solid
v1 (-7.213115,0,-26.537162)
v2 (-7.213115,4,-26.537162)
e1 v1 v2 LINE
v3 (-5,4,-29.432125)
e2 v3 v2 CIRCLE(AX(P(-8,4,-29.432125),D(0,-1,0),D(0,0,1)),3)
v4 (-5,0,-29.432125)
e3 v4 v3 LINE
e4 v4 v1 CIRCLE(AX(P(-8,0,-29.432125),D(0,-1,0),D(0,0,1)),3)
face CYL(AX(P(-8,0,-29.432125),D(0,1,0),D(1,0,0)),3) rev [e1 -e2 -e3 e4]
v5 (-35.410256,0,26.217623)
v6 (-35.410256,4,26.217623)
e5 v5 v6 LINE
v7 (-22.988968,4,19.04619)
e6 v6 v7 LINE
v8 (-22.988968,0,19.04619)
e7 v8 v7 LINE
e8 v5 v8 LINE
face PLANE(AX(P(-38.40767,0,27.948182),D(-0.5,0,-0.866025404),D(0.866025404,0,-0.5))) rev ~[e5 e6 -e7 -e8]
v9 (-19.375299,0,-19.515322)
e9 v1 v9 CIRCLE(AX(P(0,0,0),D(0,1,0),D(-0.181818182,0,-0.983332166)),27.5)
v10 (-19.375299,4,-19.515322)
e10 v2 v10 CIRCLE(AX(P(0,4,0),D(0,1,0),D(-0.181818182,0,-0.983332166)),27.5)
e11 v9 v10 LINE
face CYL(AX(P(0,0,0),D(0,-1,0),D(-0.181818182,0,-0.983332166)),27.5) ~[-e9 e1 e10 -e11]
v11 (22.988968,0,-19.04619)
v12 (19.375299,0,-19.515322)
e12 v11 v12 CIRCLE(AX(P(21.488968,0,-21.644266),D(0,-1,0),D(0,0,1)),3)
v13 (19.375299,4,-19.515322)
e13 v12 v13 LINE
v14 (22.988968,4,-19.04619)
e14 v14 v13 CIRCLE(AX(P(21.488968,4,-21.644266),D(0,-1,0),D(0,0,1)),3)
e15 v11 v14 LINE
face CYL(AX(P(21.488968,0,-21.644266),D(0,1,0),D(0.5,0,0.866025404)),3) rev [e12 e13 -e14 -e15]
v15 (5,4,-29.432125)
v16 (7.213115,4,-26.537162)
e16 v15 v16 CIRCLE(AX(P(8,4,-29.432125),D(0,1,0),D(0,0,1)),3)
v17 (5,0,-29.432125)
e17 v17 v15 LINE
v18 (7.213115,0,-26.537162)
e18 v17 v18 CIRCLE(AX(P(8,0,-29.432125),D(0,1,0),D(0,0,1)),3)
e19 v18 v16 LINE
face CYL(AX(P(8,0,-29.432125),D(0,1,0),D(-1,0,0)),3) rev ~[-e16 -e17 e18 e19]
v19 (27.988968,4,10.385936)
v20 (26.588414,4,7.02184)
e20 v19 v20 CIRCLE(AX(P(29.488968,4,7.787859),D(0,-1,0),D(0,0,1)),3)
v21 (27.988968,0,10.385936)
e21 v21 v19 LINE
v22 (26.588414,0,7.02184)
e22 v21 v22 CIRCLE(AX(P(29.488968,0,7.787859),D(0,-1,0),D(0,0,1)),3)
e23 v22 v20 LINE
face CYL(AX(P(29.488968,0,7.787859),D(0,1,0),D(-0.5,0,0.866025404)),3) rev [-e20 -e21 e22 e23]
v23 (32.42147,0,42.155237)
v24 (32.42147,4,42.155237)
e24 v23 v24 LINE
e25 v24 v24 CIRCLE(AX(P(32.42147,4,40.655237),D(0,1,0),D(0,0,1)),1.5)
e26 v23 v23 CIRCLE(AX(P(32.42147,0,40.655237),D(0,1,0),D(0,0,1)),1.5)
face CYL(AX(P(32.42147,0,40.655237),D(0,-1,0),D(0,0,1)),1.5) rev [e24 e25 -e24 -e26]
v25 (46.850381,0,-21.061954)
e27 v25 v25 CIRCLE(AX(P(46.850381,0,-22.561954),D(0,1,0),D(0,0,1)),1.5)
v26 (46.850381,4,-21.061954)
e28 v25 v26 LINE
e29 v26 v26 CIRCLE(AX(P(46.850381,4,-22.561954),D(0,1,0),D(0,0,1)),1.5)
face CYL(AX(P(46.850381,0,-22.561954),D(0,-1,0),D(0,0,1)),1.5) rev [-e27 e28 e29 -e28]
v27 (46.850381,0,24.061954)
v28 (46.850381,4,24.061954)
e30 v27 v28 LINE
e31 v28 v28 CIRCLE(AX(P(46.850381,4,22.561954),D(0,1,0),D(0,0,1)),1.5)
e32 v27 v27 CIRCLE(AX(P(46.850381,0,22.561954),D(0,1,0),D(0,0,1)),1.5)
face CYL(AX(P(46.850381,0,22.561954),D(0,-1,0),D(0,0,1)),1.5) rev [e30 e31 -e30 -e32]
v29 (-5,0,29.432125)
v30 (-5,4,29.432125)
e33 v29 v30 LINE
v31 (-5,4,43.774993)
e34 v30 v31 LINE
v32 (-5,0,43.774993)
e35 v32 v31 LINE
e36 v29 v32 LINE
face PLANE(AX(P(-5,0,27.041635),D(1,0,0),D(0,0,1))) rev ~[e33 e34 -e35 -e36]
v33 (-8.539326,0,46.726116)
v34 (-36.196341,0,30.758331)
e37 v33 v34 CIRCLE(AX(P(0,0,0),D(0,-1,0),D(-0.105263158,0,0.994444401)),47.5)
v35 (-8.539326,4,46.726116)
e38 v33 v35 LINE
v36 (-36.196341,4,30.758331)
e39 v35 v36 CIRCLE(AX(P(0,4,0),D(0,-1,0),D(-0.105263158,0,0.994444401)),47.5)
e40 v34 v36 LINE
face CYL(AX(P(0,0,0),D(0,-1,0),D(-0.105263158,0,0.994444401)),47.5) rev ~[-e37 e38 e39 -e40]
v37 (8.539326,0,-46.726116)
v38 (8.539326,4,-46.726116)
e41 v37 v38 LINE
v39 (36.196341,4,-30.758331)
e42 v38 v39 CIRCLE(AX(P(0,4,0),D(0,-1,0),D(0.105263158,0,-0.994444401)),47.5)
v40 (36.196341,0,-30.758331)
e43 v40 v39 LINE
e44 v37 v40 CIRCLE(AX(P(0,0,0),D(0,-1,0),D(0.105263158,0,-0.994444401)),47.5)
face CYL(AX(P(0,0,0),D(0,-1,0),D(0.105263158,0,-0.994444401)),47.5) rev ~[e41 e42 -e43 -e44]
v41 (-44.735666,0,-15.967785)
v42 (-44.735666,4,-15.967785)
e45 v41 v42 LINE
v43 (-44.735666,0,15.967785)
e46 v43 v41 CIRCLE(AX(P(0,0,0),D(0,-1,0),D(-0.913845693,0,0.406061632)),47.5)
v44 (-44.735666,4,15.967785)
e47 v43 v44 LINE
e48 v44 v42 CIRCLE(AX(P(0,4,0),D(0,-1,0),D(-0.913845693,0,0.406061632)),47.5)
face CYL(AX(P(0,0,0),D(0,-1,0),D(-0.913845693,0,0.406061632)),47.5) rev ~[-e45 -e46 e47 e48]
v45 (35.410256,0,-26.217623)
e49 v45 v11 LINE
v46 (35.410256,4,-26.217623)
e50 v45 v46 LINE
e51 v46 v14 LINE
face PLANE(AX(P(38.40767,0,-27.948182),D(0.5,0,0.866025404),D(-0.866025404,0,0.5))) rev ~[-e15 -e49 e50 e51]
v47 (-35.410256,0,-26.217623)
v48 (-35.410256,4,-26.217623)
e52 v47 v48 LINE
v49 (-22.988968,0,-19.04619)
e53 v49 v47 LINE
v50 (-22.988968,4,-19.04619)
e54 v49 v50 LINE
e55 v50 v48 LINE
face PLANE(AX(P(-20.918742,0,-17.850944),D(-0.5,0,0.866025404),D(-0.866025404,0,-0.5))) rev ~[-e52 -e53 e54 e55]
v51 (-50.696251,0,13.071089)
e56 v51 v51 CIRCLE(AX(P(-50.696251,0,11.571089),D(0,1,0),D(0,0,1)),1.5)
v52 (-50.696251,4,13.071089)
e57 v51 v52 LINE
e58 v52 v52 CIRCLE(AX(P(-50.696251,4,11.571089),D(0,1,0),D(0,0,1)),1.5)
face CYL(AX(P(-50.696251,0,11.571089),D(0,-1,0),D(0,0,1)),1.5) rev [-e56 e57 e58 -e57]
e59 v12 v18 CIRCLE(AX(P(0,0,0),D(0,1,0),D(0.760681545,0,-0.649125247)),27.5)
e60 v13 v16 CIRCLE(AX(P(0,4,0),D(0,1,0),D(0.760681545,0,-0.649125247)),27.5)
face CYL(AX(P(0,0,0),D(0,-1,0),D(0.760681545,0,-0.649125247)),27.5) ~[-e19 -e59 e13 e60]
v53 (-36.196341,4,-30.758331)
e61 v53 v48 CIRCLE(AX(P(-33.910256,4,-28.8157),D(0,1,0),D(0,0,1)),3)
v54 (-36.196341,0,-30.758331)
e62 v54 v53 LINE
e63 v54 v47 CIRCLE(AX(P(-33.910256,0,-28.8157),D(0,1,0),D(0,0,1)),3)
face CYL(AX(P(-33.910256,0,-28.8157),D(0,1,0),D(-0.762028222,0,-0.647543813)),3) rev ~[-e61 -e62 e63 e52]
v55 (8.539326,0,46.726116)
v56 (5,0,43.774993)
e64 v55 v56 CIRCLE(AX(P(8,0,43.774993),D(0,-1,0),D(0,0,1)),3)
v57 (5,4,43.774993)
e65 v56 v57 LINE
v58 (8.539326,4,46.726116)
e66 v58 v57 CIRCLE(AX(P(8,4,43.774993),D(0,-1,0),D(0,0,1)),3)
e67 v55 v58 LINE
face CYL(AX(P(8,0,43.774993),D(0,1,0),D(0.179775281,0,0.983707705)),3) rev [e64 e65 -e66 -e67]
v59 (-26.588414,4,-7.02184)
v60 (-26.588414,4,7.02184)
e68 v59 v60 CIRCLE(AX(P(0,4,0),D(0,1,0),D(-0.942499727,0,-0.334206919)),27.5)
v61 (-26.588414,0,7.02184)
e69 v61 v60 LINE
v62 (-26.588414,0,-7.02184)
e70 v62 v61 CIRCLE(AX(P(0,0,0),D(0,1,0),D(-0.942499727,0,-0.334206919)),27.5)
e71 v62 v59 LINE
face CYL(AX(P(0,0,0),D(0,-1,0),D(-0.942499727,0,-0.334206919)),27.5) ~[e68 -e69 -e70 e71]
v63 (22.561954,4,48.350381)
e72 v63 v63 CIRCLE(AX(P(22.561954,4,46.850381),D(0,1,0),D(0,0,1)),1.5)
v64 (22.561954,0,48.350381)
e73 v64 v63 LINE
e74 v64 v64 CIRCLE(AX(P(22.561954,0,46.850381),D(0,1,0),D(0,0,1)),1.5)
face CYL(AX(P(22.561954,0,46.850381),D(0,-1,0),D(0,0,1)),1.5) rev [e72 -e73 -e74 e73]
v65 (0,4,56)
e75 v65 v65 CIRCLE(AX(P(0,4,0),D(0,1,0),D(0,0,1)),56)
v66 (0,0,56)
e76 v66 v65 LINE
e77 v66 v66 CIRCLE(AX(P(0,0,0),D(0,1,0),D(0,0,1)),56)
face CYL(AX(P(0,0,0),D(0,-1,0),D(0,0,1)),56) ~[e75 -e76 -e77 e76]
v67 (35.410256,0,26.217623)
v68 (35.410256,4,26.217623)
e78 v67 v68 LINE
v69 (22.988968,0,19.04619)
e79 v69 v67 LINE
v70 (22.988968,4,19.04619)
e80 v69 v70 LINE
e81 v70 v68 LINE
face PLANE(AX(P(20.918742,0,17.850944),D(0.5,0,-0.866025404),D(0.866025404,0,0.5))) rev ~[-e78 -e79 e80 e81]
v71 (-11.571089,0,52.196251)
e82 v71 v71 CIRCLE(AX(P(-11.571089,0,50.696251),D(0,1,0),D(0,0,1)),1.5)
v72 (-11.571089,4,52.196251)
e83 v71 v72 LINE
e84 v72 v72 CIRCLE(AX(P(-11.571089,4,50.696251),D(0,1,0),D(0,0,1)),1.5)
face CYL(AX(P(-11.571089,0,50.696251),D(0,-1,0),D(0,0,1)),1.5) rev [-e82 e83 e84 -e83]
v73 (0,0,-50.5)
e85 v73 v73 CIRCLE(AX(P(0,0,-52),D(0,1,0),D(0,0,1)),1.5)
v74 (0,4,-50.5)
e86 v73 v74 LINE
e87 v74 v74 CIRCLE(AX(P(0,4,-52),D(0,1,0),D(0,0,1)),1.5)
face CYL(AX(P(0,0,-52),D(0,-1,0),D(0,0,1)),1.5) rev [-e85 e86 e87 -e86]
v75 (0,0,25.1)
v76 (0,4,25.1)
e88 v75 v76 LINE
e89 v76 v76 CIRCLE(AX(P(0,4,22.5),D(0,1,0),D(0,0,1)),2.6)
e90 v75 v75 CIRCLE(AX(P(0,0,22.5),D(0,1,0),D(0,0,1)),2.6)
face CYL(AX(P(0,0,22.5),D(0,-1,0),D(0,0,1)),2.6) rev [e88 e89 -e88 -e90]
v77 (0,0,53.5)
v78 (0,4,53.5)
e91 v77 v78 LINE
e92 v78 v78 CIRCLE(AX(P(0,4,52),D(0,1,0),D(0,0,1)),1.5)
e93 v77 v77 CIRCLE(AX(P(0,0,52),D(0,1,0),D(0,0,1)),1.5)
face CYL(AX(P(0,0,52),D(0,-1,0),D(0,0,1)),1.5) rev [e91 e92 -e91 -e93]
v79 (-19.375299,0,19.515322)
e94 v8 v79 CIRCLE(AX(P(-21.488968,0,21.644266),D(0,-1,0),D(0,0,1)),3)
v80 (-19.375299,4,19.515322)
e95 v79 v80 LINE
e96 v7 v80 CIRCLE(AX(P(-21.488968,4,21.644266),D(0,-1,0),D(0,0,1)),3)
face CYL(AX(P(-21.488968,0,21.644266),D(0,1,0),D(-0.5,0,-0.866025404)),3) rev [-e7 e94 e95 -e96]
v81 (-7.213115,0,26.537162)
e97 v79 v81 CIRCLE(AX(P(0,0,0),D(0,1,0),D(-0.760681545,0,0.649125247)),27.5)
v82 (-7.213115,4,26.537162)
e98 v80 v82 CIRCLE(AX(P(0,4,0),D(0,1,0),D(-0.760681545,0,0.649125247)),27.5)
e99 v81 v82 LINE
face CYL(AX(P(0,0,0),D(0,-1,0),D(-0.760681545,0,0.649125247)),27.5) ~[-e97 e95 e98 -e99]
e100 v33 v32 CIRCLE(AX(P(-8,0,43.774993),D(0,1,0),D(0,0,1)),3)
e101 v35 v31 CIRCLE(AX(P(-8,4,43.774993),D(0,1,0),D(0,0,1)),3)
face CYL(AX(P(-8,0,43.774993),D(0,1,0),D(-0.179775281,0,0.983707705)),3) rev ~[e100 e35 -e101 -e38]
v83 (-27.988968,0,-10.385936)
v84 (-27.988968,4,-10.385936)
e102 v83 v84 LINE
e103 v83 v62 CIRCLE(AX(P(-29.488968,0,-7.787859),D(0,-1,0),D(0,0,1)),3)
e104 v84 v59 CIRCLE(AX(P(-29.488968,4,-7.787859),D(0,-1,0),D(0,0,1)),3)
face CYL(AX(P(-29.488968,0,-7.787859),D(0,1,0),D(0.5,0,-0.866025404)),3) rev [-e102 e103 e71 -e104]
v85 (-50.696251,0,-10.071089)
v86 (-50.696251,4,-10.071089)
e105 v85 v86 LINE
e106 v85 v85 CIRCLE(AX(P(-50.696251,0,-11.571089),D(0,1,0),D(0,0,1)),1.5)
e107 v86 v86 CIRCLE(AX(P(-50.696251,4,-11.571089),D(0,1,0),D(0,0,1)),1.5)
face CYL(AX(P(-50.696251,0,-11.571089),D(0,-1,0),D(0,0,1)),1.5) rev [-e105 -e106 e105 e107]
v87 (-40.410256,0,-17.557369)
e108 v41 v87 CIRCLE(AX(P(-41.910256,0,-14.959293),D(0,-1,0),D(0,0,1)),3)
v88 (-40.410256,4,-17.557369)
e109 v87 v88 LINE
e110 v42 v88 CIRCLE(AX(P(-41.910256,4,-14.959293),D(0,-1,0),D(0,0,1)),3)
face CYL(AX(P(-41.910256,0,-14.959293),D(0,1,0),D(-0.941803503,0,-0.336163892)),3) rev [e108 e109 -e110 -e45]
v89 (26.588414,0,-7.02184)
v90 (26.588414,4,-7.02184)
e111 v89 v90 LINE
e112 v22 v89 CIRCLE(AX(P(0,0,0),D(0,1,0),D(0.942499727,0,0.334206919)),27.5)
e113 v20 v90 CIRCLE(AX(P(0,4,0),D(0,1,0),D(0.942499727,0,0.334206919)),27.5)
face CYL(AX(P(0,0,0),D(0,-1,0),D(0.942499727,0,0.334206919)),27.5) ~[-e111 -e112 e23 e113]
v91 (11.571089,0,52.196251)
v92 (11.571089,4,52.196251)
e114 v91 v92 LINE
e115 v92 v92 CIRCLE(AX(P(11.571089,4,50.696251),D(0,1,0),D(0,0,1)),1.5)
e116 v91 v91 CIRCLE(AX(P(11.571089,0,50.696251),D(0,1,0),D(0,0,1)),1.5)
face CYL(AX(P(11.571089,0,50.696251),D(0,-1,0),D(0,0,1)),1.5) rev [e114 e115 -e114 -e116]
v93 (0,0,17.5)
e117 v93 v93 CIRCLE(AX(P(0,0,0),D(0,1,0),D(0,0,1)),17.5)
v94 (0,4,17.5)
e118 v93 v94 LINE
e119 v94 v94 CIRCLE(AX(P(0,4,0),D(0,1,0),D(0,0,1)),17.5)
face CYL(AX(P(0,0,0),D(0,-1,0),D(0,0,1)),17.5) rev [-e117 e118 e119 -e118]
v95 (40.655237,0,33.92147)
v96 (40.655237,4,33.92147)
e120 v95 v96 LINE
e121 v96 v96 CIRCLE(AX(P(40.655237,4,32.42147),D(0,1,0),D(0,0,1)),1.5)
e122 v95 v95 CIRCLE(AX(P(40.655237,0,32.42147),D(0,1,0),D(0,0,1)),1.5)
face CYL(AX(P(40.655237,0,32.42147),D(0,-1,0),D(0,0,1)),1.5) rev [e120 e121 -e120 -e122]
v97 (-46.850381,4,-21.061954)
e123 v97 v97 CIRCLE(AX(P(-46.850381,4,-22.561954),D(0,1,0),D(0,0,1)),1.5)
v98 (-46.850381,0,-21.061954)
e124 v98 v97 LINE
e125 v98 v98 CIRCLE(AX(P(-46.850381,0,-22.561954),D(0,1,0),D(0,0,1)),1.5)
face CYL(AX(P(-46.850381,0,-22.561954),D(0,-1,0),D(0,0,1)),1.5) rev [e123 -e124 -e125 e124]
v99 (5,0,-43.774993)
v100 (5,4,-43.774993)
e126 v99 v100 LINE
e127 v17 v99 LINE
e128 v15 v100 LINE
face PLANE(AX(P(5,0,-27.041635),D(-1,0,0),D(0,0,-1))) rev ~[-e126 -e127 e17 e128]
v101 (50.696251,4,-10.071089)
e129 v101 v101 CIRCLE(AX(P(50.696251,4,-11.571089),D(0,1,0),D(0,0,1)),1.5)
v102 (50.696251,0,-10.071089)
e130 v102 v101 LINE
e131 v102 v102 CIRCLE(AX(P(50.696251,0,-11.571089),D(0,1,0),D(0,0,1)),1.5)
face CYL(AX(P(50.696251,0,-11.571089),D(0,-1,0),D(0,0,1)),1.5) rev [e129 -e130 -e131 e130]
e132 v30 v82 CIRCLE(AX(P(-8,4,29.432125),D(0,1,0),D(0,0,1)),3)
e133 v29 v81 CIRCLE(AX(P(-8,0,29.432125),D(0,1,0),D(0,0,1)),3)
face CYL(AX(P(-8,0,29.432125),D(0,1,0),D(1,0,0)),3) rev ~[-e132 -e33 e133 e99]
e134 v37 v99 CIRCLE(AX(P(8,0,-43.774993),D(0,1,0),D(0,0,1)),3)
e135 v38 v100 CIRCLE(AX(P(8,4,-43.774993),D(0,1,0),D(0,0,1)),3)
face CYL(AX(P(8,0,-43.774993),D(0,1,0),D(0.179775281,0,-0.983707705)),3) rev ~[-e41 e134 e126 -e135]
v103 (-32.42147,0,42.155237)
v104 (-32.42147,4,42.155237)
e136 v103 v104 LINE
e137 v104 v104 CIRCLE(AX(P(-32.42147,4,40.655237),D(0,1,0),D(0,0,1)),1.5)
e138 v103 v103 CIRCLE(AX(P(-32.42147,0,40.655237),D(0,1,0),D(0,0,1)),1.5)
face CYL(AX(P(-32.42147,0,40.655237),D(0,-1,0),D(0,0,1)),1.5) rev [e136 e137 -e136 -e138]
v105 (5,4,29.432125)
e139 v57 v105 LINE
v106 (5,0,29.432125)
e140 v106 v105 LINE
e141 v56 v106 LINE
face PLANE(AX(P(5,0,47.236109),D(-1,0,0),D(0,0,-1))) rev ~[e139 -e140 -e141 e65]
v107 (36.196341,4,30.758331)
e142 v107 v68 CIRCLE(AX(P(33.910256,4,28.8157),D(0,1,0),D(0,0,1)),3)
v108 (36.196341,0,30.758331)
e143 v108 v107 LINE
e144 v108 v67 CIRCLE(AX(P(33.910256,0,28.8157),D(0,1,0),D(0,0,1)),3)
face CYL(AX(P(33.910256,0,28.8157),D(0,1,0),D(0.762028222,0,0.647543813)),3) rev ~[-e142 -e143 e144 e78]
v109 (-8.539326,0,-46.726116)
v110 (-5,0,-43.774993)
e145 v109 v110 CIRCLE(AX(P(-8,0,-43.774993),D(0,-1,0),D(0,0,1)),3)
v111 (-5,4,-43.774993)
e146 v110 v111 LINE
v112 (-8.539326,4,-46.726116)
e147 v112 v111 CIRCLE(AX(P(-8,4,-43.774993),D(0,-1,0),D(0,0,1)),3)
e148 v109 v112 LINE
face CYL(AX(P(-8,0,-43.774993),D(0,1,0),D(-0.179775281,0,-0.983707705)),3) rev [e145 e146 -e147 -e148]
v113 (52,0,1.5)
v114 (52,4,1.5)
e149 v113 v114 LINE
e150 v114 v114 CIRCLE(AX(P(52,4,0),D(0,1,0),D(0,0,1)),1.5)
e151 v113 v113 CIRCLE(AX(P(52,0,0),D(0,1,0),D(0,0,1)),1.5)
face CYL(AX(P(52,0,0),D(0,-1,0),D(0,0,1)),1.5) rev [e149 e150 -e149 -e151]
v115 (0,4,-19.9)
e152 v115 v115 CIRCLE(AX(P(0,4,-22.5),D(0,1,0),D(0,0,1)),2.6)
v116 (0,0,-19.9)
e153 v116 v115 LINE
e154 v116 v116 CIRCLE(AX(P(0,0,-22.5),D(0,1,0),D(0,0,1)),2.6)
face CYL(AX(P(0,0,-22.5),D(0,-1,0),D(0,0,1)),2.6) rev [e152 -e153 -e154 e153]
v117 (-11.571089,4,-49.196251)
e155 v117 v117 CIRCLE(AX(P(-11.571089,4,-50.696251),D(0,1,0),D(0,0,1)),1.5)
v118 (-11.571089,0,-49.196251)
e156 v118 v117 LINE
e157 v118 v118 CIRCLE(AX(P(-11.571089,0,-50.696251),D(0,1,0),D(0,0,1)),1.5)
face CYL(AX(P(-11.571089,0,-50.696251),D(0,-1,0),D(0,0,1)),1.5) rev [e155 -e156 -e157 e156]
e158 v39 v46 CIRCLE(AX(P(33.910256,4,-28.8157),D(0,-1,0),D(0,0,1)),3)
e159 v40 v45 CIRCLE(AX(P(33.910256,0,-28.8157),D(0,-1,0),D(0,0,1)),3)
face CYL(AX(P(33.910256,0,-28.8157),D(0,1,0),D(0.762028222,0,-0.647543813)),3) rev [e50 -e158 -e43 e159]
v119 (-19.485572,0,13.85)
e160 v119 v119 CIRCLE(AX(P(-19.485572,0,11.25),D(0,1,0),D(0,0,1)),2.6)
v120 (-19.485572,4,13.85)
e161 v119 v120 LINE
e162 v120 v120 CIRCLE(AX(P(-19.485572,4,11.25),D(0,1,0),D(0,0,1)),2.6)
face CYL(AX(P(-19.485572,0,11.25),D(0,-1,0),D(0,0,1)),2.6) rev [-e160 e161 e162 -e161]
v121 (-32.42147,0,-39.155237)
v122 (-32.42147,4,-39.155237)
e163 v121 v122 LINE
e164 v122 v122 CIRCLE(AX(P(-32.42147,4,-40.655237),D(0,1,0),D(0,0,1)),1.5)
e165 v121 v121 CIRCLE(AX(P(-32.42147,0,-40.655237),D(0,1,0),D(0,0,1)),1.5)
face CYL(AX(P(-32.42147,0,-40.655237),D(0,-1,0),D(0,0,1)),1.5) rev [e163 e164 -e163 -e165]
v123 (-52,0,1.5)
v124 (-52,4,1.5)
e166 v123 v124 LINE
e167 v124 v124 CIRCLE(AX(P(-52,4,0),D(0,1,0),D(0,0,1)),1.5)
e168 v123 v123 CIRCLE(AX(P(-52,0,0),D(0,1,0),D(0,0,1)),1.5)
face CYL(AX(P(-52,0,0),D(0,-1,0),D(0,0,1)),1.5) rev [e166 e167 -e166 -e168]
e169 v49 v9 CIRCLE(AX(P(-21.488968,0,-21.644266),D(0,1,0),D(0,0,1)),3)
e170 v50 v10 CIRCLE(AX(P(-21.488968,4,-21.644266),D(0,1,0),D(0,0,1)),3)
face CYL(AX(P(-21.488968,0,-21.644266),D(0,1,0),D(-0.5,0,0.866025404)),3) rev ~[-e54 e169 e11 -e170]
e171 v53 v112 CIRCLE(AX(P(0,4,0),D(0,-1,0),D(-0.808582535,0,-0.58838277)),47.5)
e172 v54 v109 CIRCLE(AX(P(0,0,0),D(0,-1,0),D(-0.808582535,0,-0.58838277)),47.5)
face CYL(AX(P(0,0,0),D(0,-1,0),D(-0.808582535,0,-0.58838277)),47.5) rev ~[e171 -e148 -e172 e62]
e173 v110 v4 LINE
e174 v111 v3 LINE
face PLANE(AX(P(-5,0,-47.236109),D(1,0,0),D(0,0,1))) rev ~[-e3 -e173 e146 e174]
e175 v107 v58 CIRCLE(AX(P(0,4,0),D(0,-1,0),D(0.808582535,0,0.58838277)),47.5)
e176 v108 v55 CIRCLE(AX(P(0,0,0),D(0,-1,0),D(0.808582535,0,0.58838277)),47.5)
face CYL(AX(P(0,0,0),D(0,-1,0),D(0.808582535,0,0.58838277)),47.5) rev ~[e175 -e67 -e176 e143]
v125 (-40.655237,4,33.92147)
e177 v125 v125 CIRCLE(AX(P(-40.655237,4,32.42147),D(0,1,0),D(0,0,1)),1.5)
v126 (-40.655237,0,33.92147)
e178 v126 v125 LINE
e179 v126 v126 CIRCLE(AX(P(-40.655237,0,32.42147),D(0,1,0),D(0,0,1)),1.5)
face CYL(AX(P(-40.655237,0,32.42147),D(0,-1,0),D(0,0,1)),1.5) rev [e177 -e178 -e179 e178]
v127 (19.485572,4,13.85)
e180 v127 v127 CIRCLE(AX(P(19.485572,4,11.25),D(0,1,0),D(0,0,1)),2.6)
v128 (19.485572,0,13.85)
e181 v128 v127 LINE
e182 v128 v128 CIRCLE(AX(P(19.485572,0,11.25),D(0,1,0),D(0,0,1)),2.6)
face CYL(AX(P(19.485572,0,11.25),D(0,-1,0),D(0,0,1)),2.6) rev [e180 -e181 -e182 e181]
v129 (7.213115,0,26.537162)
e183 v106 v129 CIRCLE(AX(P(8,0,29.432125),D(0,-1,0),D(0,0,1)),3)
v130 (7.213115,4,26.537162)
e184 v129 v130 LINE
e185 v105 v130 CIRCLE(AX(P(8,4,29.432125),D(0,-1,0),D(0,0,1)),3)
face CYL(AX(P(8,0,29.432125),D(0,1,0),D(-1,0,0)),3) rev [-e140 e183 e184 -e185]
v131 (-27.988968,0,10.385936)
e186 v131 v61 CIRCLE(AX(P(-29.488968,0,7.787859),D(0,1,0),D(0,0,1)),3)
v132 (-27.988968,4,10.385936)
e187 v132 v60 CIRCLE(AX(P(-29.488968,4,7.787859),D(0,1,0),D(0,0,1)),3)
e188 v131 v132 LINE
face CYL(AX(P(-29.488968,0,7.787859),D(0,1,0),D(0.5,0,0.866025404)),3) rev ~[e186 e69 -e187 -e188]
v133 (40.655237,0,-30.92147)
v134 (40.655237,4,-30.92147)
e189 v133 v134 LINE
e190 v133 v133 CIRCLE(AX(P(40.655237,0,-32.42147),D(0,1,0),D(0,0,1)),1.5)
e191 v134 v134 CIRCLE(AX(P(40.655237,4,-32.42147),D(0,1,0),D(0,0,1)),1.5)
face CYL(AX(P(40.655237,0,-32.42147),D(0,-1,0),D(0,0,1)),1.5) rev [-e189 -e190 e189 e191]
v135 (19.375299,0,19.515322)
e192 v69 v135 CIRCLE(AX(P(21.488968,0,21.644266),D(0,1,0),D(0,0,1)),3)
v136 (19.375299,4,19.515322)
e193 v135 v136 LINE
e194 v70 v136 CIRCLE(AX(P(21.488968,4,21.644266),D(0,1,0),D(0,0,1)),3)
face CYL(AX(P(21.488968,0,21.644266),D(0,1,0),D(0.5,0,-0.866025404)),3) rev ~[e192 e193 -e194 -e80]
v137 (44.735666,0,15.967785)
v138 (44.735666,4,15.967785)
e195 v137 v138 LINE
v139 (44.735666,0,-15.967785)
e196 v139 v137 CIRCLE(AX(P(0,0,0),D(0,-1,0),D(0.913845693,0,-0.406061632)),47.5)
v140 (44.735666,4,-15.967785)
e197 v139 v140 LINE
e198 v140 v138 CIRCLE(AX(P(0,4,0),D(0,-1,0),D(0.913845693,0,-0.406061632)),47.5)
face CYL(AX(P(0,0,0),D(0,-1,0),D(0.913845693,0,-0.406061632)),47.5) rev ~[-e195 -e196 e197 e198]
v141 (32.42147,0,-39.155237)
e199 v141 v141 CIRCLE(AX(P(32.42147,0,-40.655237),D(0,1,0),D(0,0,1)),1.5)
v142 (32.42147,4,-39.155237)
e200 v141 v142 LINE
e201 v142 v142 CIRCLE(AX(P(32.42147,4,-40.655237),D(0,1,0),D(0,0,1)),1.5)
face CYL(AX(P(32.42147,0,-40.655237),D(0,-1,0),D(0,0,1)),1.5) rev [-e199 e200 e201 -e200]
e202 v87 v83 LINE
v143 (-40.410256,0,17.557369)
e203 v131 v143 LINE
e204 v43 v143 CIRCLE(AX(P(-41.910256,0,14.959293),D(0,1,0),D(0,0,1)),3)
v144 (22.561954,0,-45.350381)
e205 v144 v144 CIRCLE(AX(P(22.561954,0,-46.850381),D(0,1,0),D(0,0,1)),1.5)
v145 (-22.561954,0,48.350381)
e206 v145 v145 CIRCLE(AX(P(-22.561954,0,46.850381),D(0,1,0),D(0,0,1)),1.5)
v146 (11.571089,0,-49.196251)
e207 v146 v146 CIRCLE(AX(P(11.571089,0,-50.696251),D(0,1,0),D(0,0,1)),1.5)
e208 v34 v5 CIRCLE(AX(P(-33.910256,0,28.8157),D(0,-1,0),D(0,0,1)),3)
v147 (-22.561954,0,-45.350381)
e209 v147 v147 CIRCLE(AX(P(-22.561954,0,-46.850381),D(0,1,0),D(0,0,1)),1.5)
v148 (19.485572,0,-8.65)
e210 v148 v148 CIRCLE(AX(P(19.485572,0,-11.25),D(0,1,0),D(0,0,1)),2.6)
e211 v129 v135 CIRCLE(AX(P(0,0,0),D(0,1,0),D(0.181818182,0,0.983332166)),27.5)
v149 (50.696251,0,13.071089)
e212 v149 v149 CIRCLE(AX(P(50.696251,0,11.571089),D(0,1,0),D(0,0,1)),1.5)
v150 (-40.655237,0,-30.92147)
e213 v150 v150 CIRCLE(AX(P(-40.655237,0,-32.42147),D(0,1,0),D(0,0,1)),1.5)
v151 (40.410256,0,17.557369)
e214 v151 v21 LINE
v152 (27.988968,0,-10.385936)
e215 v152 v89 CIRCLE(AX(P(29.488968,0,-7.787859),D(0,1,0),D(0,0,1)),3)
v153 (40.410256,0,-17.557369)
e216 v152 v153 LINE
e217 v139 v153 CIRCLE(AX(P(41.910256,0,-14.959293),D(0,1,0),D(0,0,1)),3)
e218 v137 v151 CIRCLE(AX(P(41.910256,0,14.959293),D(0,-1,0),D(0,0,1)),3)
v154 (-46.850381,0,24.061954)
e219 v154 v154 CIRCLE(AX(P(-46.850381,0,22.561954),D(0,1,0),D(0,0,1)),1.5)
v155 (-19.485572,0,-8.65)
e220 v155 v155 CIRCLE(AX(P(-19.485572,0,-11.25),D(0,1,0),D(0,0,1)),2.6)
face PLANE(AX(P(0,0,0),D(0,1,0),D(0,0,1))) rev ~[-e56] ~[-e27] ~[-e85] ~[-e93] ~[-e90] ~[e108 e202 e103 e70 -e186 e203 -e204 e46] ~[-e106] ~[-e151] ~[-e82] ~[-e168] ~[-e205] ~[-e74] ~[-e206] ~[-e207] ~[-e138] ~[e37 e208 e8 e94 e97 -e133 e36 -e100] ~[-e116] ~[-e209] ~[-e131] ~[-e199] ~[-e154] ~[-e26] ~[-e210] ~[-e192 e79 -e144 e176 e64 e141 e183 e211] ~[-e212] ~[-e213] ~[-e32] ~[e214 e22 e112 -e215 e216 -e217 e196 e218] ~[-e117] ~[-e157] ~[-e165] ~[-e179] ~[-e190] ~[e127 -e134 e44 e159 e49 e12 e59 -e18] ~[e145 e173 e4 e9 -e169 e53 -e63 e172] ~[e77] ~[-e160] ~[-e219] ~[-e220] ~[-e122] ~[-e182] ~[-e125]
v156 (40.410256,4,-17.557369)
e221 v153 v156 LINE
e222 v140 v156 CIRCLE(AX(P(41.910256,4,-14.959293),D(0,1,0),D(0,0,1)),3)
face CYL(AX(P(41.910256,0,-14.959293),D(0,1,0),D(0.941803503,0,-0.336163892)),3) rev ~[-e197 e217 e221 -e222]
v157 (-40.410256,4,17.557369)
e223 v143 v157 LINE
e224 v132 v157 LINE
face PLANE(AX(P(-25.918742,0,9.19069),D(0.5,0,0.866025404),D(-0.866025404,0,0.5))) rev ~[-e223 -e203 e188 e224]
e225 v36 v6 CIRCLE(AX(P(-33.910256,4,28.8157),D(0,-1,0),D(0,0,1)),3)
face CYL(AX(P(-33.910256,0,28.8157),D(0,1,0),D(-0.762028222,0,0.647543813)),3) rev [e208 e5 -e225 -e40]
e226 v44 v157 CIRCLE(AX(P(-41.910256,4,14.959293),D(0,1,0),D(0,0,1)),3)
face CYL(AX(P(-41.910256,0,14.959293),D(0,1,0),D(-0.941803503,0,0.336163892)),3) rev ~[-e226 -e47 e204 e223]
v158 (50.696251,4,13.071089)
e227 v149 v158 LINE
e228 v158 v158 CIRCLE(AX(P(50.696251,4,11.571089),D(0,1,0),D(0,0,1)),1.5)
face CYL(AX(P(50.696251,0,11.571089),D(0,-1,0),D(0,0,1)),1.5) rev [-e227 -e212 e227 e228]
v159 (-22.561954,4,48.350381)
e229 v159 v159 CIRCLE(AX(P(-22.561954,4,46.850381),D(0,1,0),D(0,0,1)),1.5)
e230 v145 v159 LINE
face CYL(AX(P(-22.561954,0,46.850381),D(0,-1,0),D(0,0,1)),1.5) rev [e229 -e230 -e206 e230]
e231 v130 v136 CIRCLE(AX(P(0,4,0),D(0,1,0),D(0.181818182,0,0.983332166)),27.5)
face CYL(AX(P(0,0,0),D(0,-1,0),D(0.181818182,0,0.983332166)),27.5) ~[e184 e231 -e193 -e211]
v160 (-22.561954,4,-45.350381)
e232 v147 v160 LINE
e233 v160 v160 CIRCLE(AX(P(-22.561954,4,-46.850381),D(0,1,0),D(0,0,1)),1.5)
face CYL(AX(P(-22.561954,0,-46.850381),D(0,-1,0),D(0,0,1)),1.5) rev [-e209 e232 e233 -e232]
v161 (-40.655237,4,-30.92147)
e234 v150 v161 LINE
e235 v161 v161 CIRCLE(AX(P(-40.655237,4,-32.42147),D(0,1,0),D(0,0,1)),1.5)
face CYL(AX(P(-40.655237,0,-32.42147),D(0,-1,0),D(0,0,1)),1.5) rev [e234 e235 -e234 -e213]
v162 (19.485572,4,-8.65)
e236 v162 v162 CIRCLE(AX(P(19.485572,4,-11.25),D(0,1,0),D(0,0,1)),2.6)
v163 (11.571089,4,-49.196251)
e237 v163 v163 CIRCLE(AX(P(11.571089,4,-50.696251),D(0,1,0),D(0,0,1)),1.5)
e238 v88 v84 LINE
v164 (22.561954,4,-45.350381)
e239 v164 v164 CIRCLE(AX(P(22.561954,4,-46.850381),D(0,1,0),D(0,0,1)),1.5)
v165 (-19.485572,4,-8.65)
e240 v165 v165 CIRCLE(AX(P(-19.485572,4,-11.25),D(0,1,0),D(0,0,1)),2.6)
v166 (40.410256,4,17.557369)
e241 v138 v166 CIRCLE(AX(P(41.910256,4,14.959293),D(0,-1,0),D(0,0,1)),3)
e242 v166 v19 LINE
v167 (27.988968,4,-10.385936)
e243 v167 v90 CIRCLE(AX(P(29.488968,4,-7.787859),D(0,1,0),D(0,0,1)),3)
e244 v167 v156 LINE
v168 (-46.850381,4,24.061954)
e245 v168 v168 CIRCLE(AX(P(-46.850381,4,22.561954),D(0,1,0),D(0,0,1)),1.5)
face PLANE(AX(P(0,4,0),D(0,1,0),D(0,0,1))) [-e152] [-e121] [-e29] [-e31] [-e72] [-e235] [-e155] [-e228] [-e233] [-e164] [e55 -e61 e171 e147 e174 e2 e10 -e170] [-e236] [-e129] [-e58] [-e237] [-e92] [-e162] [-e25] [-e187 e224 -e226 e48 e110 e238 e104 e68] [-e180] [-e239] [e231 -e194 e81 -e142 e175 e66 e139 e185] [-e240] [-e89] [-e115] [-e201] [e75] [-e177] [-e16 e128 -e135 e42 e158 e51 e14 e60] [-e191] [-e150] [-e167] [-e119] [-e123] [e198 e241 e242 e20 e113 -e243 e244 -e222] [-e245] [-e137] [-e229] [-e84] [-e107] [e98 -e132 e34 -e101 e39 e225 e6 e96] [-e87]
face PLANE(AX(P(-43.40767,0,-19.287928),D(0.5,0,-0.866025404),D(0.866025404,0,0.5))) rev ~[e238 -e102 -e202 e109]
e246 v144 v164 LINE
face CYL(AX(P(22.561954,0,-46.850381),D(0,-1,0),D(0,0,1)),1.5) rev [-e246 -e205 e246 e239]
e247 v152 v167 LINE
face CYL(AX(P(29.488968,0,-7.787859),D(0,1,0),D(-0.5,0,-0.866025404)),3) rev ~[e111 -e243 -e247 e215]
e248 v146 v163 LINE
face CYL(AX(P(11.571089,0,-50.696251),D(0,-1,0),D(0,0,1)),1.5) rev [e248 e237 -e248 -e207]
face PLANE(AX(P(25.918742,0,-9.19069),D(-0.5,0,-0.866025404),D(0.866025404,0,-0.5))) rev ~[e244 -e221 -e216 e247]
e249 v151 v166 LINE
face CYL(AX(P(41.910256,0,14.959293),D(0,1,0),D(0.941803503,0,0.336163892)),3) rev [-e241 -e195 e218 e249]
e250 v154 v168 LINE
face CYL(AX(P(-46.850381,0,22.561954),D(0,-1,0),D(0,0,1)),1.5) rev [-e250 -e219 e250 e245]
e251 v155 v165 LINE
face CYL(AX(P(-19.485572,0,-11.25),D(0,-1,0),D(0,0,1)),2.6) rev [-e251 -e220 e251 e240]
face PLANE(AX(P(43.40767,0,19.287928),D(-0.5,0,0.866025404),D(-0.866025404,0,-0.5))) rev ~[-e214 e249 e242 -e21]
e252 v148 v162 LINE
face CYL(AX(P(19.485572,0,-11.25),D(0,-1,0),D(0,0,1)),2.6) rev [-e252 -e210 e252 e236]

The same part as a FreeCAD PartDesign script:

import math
import FreeCAD as App
import Part
import Sketcher
Q = App.Units.Quantity


def edges_at(feature, points):
    """Names of the edges that pass closest to the given points."""
    edges = feature.Shape.Edges
    near = lambda p: min(range(len(edges)), key=lambda i: edges[i].distToShape(Part.Vertex(*p))[0])
    return sorted({f"Edge{near(p) + 1}" for p in points})

doc = App.newDocument("Part")
params = doc.addObject("Spreadsheet::Sheet", "Params")
for row, (alias, value) in enumerate([
    ("sketch1_diameter", "112 mm"),
    ("sketch1_diameter2", "3 mm"),
    ("sketch1_diameter3", "35 mm"),
    ("sketch1_diameter4", "5.2 mm"),
    ("sketch1_radius", "47.5 mm"),
    ("pad1_length", "4 mm"),
    ("fillet_radius", "3 mm"),
], start=1):
    params.set(f"A{row}", alias)
    params.set(f"B{row}", "=" + value)
    params.setAlias(f"B{row}", alias)

body = doc.addObject("PartDesign::Body", "Body")

sketch1 = doc.addObject("Sketcher::SketchObject", "Sketch")
body.addObject(sketch1)
sketch1.AttachmentSupport = (doc.XZ_Plane, [""])
sketch1.MapMode = "FlatFace"
sketch1.addGeometry(Part.Circle(App.Vector(0, 0, 0), App.Vector(0, 0, 1), 56), False)
sketch1.addGeometry(Part.Circle(App.Vector(-40.655237, -32.42147, 0), App.Vector(0, 0, 1), 1.5), False)
sketch1.addGeometry(Part.Circle(App.Vector(-32.42147, -40.655237, 0), App.Vector(0, 0, 1), 1.5), False)
sketch1.addGeometry(Part.Circle(App.Vector(-46.850381, -22.561954, 0), App.Vector(0, 0, 1), 1.5), False)
sketch1.addGeometry(Part.Circle(App.Vector(-50.696251, -11.571089, 0), App.Vector(0, 0, 1), 1.5), False)
sketch1.addGeometry(Part.Circle(App.Vector(-22.561954, -46.850381, 0), App.Vector(0, 0, 1), 1.5), False)
sketch1.addGeometry(Part.ArcOfCircle(Part.Circle(App.Vector(0, 0, 0), App.Vector(0, 0, 1), 47.5), math.radians(-143.957672), math.radians(-96.042328)), False)
sketch1.addGeometry(Part.LineSegment(App.Vector(-5, -47.236109, 0), App.Vector(-5, -27.041635, 0)), False)
sketch1.addGeometry(Part.ArcOfCircle(Part.Circle(App.Vector(0, 0, 0), App.Vector(0, 0, 1), 27.5), math.radians(-139.524318), math.radians(-100.475682)), False)
sketch1.addGeometry(Part.LineSegment(App.Vector(-20.918742, -17.850944, 0), App.Vector(-38.40767, -27.948182, 0)), False)
sketch1.addGeometry(Part.Circle(App.Vector(-11.571089, -50.696251, 0), App.Vector(0, 0, 1), 1.5), False)
sketch1.addGeometry(Part.Circle(App.Vector(0, -52, 0), App.Vector(0, 0, 1), 1.5), False)
sketch1.addGeometry(Part.Circle(App.Vector(-19.485572, -11.25, 0), App.Vector(0, 0, 1), 2.6), False)
sketch1.addGeometry(Part.Circle(App.Vector(0, -22.5, 0), App.Vector(0, 0, 1), 2.6), False)
sketch1.addGeometry(Part.Circle(App.Vector(0, 0, 0), App.Vector(0, 0, 1), 17.5), False)
sketch1.addGeometry(Part.Circle(App.Vector(-52, 0, 0), App.Vector(0, 0, 1), 1.5), False)
sketch1.addGeometry(Part.Circle(App.Vector(-50.696251, 11.571089, 0), App.Vector(0, 0, 1), 1.5), False)
sketch1.addGeometry(Part.Circle(App.Vector(-46.850381, 22.561954, 0), App.Vector(0, 0, 1), 1.5), False)
sketch1.addGeometry(Part.ArcOfCircle(Part.Circle(App.Vector(0, 0, 0), App.Vector(0, 0, 1), 47.5), math.radians(156.042328), math.radians(203.957672)), False)
sketch1.addGeometry(Part.LineSegment(App.Vector(-43.40767, -19.287928, 0), App.Vector(-25.918742, -9.19069, 0)), False)
sketch1.addGeometry(Part.ArcOfCircle(Part.Circle(App.Vector(0, 0, 0), App.Vector(0, 0, 1), 27.5), math.radians(160.475682), math.radians(199.524318)), False)
sketch1.addGeometry(Part.LineSegment(App.Vector(-25.918742, 9.19069, 0), App.Vector(-43.40767, 19.287928, 0)), False)
sketch1.addGeometry(Part.Circle(App.Vector(-40.655237, 32.42147, 0), App.Vector(0, 0, 1), 1.5), False)
sketch1.addGeometry(Part.Circle(App.Vector(-32.42147, 40.655237, 0), App.Vector(0, 0, 1), 1.5), False)
sketch1.addGeometry(Part.Circle(App.Vector(-19.485572, 11.25, 0), App.Vector(0, 0, 1), 2.6), False)
sketch1.addGeometry(Part.ArcOfCircle(Part.Circle(App.Vector(0, 0, 0), App.Vector(0, 0, 1), 47.5), math.radians(96.042328), math.radians(143.957672)), False)
sketch1.addGeometry(Part.LineSegment(App.Vector(-38.40767, 27.948182, 0), App.Vector(-20.918742, 17.850944, 0)), False)
sketch1.addGeometry(Part.ArcOfCircle(Part.Circle(App.Vector(0, 0, 0), App.Vector(0, 0, 1), 27.5), math.radians(100.475682), math.radians(139.524318)), False)
sketch1.addGeometry(Part.LineSegment(App.Vector(-5, 27.041635, 0), App.Vector(-5, 47.236109, 0)), False)
sketch1.addGeometry(Part.Circle(App.Vector(-22.561954, 46.850381, 0), App.Vector(0, 0, 1), 1.5), False)
sketch1.addGeometry(Part.Circle(App.Vector(-11.571089, 50.696251, 0), App.Vector(0, 0, 1), 1.5), False)
sketch1.addGeometry(Part.Circle(App.Vector(11.571089, -50.696251, 0), App.Vector(0, 0, 1), 1.5), False)
sketch1.addGeometry(Part.Circle(App.Vector(22.561954, -46.850381, 0), App.Vector(0, 0, 1), 1.5), False)
sketch1.addGeometry(Part.ArcOfCircle(Part.Circle(App.Vector(0, 0, 0), App.Vector(0, 0, 1), 47.5), math.radians(-83.957672), math.radians(-36.042328)), False)
sketch1.addGeometry(Part.LineSegment(App.Vector(38.40767, -27.948182, 0), App.Vector(20.918742, -17.850944, 0)), False)
sketch1.addGeometry(Part.ArcOfCircle(Part.Circle(App.Vector(0, 0, 0), App.Vector(0, 0, 1), 27.5), math.radians(-79.524318), math.radians(-40.475682)), False)
sketch1.addGeometry(Part.LineSegment(App.Vector(5, -27.041635, 0), App.Vector(5, -47.236109, 0)), False)
sketch1.addGeometry(Part.Circle(App.Vector(19.485572, -11.25, 0), App.Vector(0, 0, 1), 2.6), False)
sketch1.addGeometry(Part.Circle(App.Vector(32.42147, -40.655237, 0), App.Vector(0, 0, 1), 1.5), False)
sketch1.addGeometry(Part.Circle(App.Vector(40.655237, -32.42147, 0), App.Vector(0, 0, 1), 1.5), False)
sketch1.addGeometry(Part.ArcOfCircle(Part.Circle(App.Vector(0, 0, 0), App.Vector(0, 0, 1), 47.5), math.radians(-23.957672), math.radians(23.957672)), False)
sketch1.addGeometry(Part.LineSegment(App.Vector(43.40767, 19.287928, 0), App.Vector(25.918742, 9.19069, 0)), False)
sketch1.addGeometry(Part.ArcOfCircle(Part.Circle(App.Vector(0, 0, 0), App.Vector(0, 0, 1), 27.5), math.radians(-19.524318), math.radians(19.524318)), False)
sketch1.addGeometry(Part.LineSegment(App.Vector(25.918742, -9.19069, 0), App.Vector(43.40767, -19.287928, 0)), False)
sketch1.addGeometry(Part.Circle(App.Vector(46.850381, -22.561954, 0), App.Vector(0, 0, 1), 1.5), False)
sketch1.addGeometry(Part.Circle(App.Vector(50.696251, -11.571089, 0), App.Vector(0, 0, 1), 1.5), False)
sketch1.addGeometry(Part.Circle(App.Vector(52, 0, 0), App.Vector(0, 0, 1), 1.5), False)
sketch1.addGeometry(Part.Circle(App.Vector(0, 22.5, 0), App.Vector(0, 0, 1), 2.6), False)
sketch1.addGeometry(Part.Circle(App.Vector(19.485572, 11.25, 0), App.Vector(0, 0, 1), 2.6), False)
sketch1.addGeometry(Part.Circle(App.Vector(0, 52, 0), App.Vector(0, 0, 1), 1.5), False)
sketch1.addGeometry(Part.Circle(App.Vector(11.571089, 50.696251, 0), App.Vector(0, 0, 1), 1.5), False)
sketch1.addGeometry(Part.ArcOfCircle(Part.Circle(App.Vector(0, 0, 0), App.Vector(0, 0, 1), 47.5), math.radians(36.042328), math.radians(83.957672)), False)
sketch1.addGeometry(Part.LineSegment(App.Vector(5, 47.236109, 0), App.Vector(5, 27.041635, 0)), False)
sketch1.addGeometry(Part.ArcOfCircle(Part.Circle(App.Vector(0, 0, 0), App.Vector(0, 0, 1), 27.5), math.radians(40.475682), math.radians(79.524318)), False)
sketch1.addGeometry(Part.LineSegment(App.Vector(20.918742, 17.850944, 0), App.Vector(38.40767, 27.948182, 0)), False)
sketch1.addGeometry(Part.Circle(App.Vector(22.561954, 46.850381, 0), App.Vector(0, 0, 1), 1.5), False)
sketch1.addGeometry(Part.Circle(App.Vector(50.696251, 11.571089, 0), App.Vector(0, 0, 1), 1.5), False)
sketch1.addGeometry(Part.Circle(App.Vector(46.850381, 22.561954, 0), App.Vector(0, 0, 1), 1.5), False)
sketch1.addGeometry(Part.Circle(App.Vector(32.42147, 40.655237, 0), App.Vector(0, 0, 1), 1.5), False)
sketch1.addGeometry(Part.Circle(App.Vector(40.655237, 32.42147, 0), App.Vector(0, 0, 1), 1.5), False)
sketch1.addConstraint(Sketcher.Constraint("Coincident", 6, 2, 7, 1))
sketch1.addConstraint(Sketcher.Constraint("Coincident", 7, 2, 8, 2))
sketch1.addConstraint(Sketcher.Constraint("Coincident", 8, 1, 9, 1))
sketch1.addConstraint(Sketcher.Constraint("Coincident", 9, 2, 6, 1))
sketch1.addConstraint(Sketcher.Constraint("Coincident", 18, 2, 19, 1))
sketch1.addConstraint(Sketcher.Constraint("Coincident", 19, 2, 20, 2))
sketch1.addConstraint(Sketcher.Constraint("Coincident", 20, 1, 21, 1))
sketch1.addConstraint(Sketcher.Constraint("Coincident", 21, 2, 18, 1))
sketch1.addConstraint(Sketcher.Constraint("Coincident", 25, 2, 26, 1))
sketch1.addConstraint(Sketcher.Constraint("Coincident", 26, 2, 27, 2))
sketch1.addConstraint(Sketcher.Constraint("Coincident", 27, 1, 28, 1))
sketch1.addConstraint(Sketcher.Constraint("Coincident", 28, 2, 25, 1))
sketch1.addConstraint(Sketcher.Constraint("Coincident", 33, 2, 34, 1))
sketch1.addConstraint(Sketcher.Constraint("Coincident", 34, 2, 35, 2))
sketch1.addConstraint(Sketcher.Constraint("Coincident", 35, 1, 36, 1))
sketch1.addConstraint(Sketcher.Constraint("Coincident", 36, 2, 33, 1))
sketch1.addConstraint(Sketcher.Constraint("Coincident", 40, 2, 41, 1))
sketch1.addConstraint(Sketcher.Constraint("Coincident", 41, 2, 42, 2))
sketch1.addConstraint(Sketcher.Constraint("Coincident", 42, 1, 43, 1))
sketch1.addConstraint(Sketcher.Constraint("Coincident", 43, 2, 40, 1))
sketch1.addConstraint(Sketcher.Constraint("Coincident", 51, 2, 52, 1))
sketch1.addConstraint(Sketcher.Constraint("Coincident", 52, 2, 53, 2))
sketch1.addConstraint(Sketcher.Constraint("Coincident", 53, 1, 54, 1))
sketch1.addConstraint(Sketcher.Constraint("Coincident", 54, 2, 51, 1))
sketch1.addConstraint(Sketcher.Constraint("Vertical", 7))
sketch1.addConstraint(Sketcher.Constraint("Vertical", 28))
sketch1.addConstraint(Sketcher.Constraint("Vertical", 36))
sketch1.addConstraint(Sketcher.Constraint("Vertical", 52))
sketch1.addConstraint(Sketcher.Constraint("Coincident", 0, 3, -1, 1))
sketch1.addConstraint(Sketcher.Constraint("Coincident", 6, 3, -1, 1))
sketch1.addConstraint(Sketcher.Constraint("Coincident", 8, 3, -1, 1))
sketch1.addConstraint(Sketcher.Constraint("Coincident", 14, 3, -1, 1))
sketch1.addConstraint(Sketcher.Constraint("Coincident", 18, 3, -1, 1))
sketch1.addConstraint(Sketcher.Constraint("Coincident", 20, 3, -1, 1))
sketch1.addConstraint(Sketcher.Constraint("Coincident", 25, 3, -1, 1))
sketch1.addConstraint(Sketcher.Constraint("Coincident", 27, 3, -1, 1))
sketch1.addConstraint(Sketcher.Constraint("Coincident", 33, 3, -1, 1))
sketch1.addConstraint(Sketcher.Constraint("Coincident", 35, 3, -1, 1))
sketch1.addConstraint(Sketcher.Constraint("Coincident", 40, 3, -1, 1))
sketch1.addConstraint(Sketcher.Constraint("Coincident", 42, 3, -1, 1))
sketch1.addConstraint(Sketcher.Constraint("Coincident", 51, 3, -1, 1))
sketch1.addConstraint(Sketcher.Constraint("Coincident", 53, 3, -1, 1))
sketch1.addConstraint(Sketcher.Constraint("Equal", 1, 2))
sketch1.addConstraint(Sketcher.Constraint("Equal", 2, 3))
sketch1.addConstraint(Sketcher.Constraint("Equal", 3, 4))
sketch1.addConstraint(Sketcher.Constraint("Equal", 4, 5))
sketch1.addConstraint(Sketcher.Constraint("Equal", 5, 10))
sketch1.addConstraint(Sketcher.Constraint("Equal", 10, 11))
sketch1.addConstraint(Sketcher.Constraint("Equal", 12, 13))
sketch1.addConstraint(Sketcher.Constraint("Equal", 11, 15))
sketch1.addConstraint(Sketcher.Constraint("Equal", 15, 16))
sketch1.addConstraint(Sketcher.Constraint("Equal", 16, 17))
sketch1.addConstraint(Sketcher.Constraint("Equal", 6, 18))
sketch1.addConstraint(Sketcher.Constraint("Equal", 8, 20))
sketch1.addConstraint(Sketcher.Constraint("Equal", 17, 22))
sketch1.addConstraint(Sketcher.Constraint("Equal", 22, 23))
sketch1.addConstraint(Sketcher.Constraint("Equal", 13, 24))
sketch1.addConstraint(Sketcher.Constraint("Equal", 18, 25))
sketch1.addConstraint(Sketcher.Constraint("Equal", 20, 27))
sketch1.addConstraint(Sketcher.Constraint("Equal", 23, 29))
sketch1.addConstraint(Sketcher.Constraint("Equal", 29, 30))
sketch1.addConstraint(Sketcher.Constraint("Equal", 30, 31))
sketch1.addConstraint(Sketcher.Constraint("Equal", 31, 32))
sketch1.addConstraint(Sketcher.Constraint("Equal", 25, 33))
sketch1.addConstraint(Sketcher.Constraint("Equal", 27, 35))
sketch1.addConstraint(Sketcher.Constraint("Equal", 24, 37))
sketch1.addConstraint(Sketcher.Constraint("Equal", 32, 38))
sketch1.addConstraint(Sketcher.Constraint("Equal", 38, 39))
sketch1.addConstraint(Sketcher.Constraint("Equal", 33, 40))
sketch1.addConstraint(Sketcher.Constraint("Equal", 35, 42))
sketch1.addConstraint(Sketcher.Constraint("Equal", 39, 44))
sketch1.addConstraint(Sketcher.Constraint("Equal", 44, 45))
sketch1.addConstraint(Sketcher.Constraint("Equal", 45, 46))
sketch1.addConstraint(Sketcher.Constraint("Equal", 37, 47))
sketch1.addConstraint(Sketcher.Constraint("Equal", 47, 48))
sketch1.addConstraint(Sketcher.Constraint("Equal", 46, 49))
sketch1.addConstraint(Sketcher.Constraint("Equal", 49, 50))
sketch1.addConstraint(Sketcher.Constraint("Equal", 40, 51))
sketch1.addConstraint(Sketcher.Constraint("Equal", 42, 53))
sketch1.addConstraint(Sketcher.Constraint("Equal", 50, 55))
sketch1.addConstraint(Sketcher.Constraint("Equal", 55, 56))
sketch1.addConstraint(Sketcher.Constraint("Equal", 56, 57))
sketch1.addConstraint(Sketcher.Constraint("Equal", 57, 58))
sketch1.addConstraint(Sketcher.Constraint("Equal", 58, 59))
sketch1.addConstraint(Sketcher.Constraint("Symmetric", 30, 3, 31, 3, -1, 1))
sketch1.addConstraint(Sketcher.Constraint("Symmetric", 29, 3, 32, 3, -1, 1))
sketch1.addConstraint(Sketcher.Constraint("Symmetric", 24, 3, 37, 3, -1, 1))
sketch1.addConstraint(Sketcher.Constraint("Symmetric", 23, 3, 38, 3, -1, 1))
sketch1.addConstraint(Sketcher.Constraint("Symmetric", 22, 3, 39, 3, -1, 1))
sketch1.addConstraint(Sketcher.Constraint("Symmetric", 17, 3, 44, 3, -1, 1))
sketch1.addConstraint(Sketcher.Constraint("Symmetric", 16, 3, 45, 3, -1, 1))
sketch1.addConstraint(Sketcher.Constraint("Symmetric", 15, 3, 46, 3, -1, 1))
sketch1.addConstraint(Sketcher.Constraint("Symmetric", 13, 3, 47, 3, -1, 1))
sketch1.addConstraint(Sketcher.Constraint("Symmetric", 12, 3, 48, 3, -1, 1))
sketch1.addConstraint(Sketcher.Constraint("Symmetric", 11, 3, 49, 3, -1, 1))
sketch1.addConstraint(Sketcher.Constraint("Symmetric", 10, 3, 50, 3, -1, 1))
sketch1.addConstraint(Sketcher.Constraint("Symmetric", 5, 3, 55, 3, -1, 1))
sketch1.addConstraint(Sketcher.Constraint("Symmetric", 4, 3, 56, 3, -1, 1))
sketch1.addConstraint(Sketcher.Constraint("Symmetric", 3, 3, 57, 3, -1, 1))
sketch1.addConstraint(Sketcher.Constraint("Symmetric", 2, 3, 58, 3, -1, 1))
sketch1.addConstraint(Sketcher.Constraint("Symmetric", 1, 3, 59, 3, -1, 1))
sketch1.addConstraint(Sketcher.Constraint("Symmetric", 10, 3, 31, 3, -2))
sketch1.addConstraint(Sketcher.Constraint("Symmetric", 5, 3, 32, 3, -2))
sketch1.addConstraint(Sketcher.Constraint("Symmetric", 12, 3, 37, 3, -2))
sketch1.addConstraint(Sketcher.Constraint("Symmetric", 2, 3, 38, 3, -2))
sketch1.addConstraint(Sketcher.Constraint("Symmetric", 1, 3, 39, 3, -2))
sketch1.addConstraint(Sketcher.Constraint("Symmetric", 3, 3, 44, 3, -2))
sketch1.addConstraint(Sketcher.Constraint("Symmetric", 4, 3, 45, 3, -2))
sketch1.addConstraint(Sketcher.Constraint("PointOnObject", 11, 3, -2))
sketch1.addConstraint(Sketcher.Constraint("PointOnObject", 13, 3, -2))
sketch1.addConstraint(Sketcher.Constraint("PointOnObject", 15, 3, -1))
sketch1.addConstraint(Sketcher.Constraint("Parallel", 9, 19))
sketch1.addConstraint(Sketcher.Constraint("Parallel", 21, 26))
sketch1.addConstraint(Sketcher.Constraint("Parallel", 26, 34))
sketch1.addConstraint(Sketcher.Constraint("Parallel", 19, 41))
sketch1.addConstraint(Sketcher.Constraint("Parallel", 34, 43))
sketch1.addConstraint(Sketcher.Constraint("Parallel", 41, 54))
sketch1.addConstraint(Sketcher.Constraint("Horizontal", 9, 2, 33, 2))
sketch1.addConstraint(Sketcher.Constraint("Horizontal", 8, 1, 34, 2))
sketch1.addConstraint(Sketcher.Constraint("Horizontal", 7, 2, 35, 1))
sketch1.addConstraint(Sketcher.Constraint("Horizontal", 21, 2, 40, 2))
sketch1.addConstraint(Sketcher.Constraint("Horizontal", 19, 2, 42, 1))
sketch1.addConstraint(Sketcher.Constraint("Horizontal", 28, 2, 51, 2))
sketch1.addConstraint(Sketcher.Constraint("Horizontal", 26, 2, 53, 1))
sketch1.addConstraint(Sketcher.Constraint("Vertical", 19, 2, 20, 1))
sketch1.addConstraint(Sketcher.Constraint("Vertical", 9, 2, 25, 2))
sketch1.addConstraint(Sketcher.Constraint("Vertical", 7, 2, 27, 1))
sketch1.addConstraint(Sketcher.Constraint("Equal", 9, 19))
sketch1.addConstraint(Sketcher.Constraint("Diameter", 0, Q("112 mm")))
sketch1.addConstraint(Sketcher.Constraint("Diameter", 1, Q("3 mm")))
sketch1.addConstraint(Sketcher.Constraint("Diameter", 14, Q("35 mm")))
sketch1.addConstraint(Sketcher.Constraint("Diameter", 12, Q("5.2 mm")))
sketch1.addConstraint(Sketcher.Constraint("Radius", 6, Q("47.5 mm")))
sketch1.addConstraint(Sketcher.Constraint("Radius", 8, Q("27.5 mm")))
sketch1.addConstraint(Sketcher.Constraint("Angle", 9, Q("-150 deg")))
sketch1.addConstraint(Sketcher.Constraint("DistanceY", 11, 3, -1, 1, Q("52 mm")))
sketch1.addConstraint(Sketcher.Constraint("DistanceX", 15, 3, -1, 1, Q("52 mm")))
sketch1.addConstraint(Sketcher.Constraint("DistanceX", 6, 2, -1, 1, Q("5 mm")))
sketch1.addConstraint(Sketcher.Constraint("DistanceY", 13, 3, -1, 1, Q("22.5 mm")))
sketch1.addConstraint(Sketcher.Constraint("DistanceY", 12, 3, -1, 1, Q("11.25 mm")))
sketch1.addConstraint(Sketcher.Constraint("DistanceY", 1, 3, -1, 1, Q("32.42147 mm")))
sketch1.addConstraint(Sketcher.Constraint("DistanceX", 2, 3, -1, 1, Q("32.42147 mm")))
sketch1.addConstraint(Sketcher.Constraint("DistanceX", 3, 3, -1, 1, Q("46.850381 mm")))
sketch1.addConstraint(Sketcher.Constraint("DistanceX", 4, 3, -1, 1, Q("50.696251 mm")))
sketch1.addConstraint(Sketcher.Constraint("DistanceY", 4, 3, -1, 1, Q("11.571089 mm")))
sketch1.addConstraint(Sketcher.Constraint("DistanceY", 5, 3, -1, 1, Q("46.850381 mm")))
sketch1.addConstraint(Sketcher.Constraint("DistanceX", 10, 3, -1, 1, Q("11.571089 mm")))
sketch1.addConstraint(Sketcher.Constraint("DistanceY", 10, 3, -1, 1, Q("50.696251 mm")))
sketch1.addConstraint(Sketcher.Constraint("DistanceX", 12, 3, -1, 1, Q("19.485572 mm")))
sketch1.addConstraint(Sketcher.Constraint("DistanceX", 9, 2, -1, 1, Q("38.40767 mm")))
sketch1.addConstraint(Sketcher.Constraint("DistanceX", 1, 3, -1, 1, Q("40.655237 mm")))
sketch1.addConstraint(Sketcher.Constraint("DistanceY", 2, 3, -1, 1, Q("40.655237 mm")))
sketch1.addConstraint(Sketcher.Constraint("DistanceY", 3, 3, -1, 1, Q("22.561954 mm")))
sketch1.addConstraint(Sketcher.Constraint("DistanceX", 5, 3, -1, 1, Q("22.561954 mm")))
sketch1.setExpression("Constraints[128]", "Params.sketch1_diameter")
sketch1.setExpression("Constraints[129]", "Params.sketch1_diameter2")
sketch1.setExpression("Constraints[130]", "Params.sketch1_diameter3")
sketch1.setExpression("Constraints[131]", "Params.sketch1_diameter4")
sketch1.setExpression("Constraints[132]", "Params.sketch1_radius")
pad1 = doc.addObject("PartDesign::Pad", "Pad")
body.addObject(pad1)
pad1.Profile = sketch1
pad1.setExpression("Length", "Params.pad1_length")
pad1.Reversed = True
doc.recompute()

fillet = doc.addObject("PartDesign::Fillet", "Fillet")
body.addObject(fillet)
fillet.Base = (pad1, edges_at(pad1, [
    (5, 2, 27.042),
    (5, 2, 47.236),
    (38.408, 2, 27.948),
    (20.919, 2, 17.851),
    (43.408, 2, -19.288),
    (25.919, 2, -9.191),
    (25.919, 2, 9.191),
    (43.408, 2, 19.288),
    (5, 2, -47.236),
    (5, 2, -27.042),
    (20.919, 2, -17.851),
    (38.408, 2, -27.948),
    (-38.408, 2, -27.948),
    (-20.919, 2, -17.851),
    (-5, 2, -27.042),
    (-5, 2, -47.236),
    (-43.408, 2, 19.288),
    (-25.919, 2, 9.191),
    (-25.919, 2, -9.191),
    (-43.408, 2, -19.288),
    (-5, 2, 47.236),
    (-5, 2, 27.042),
    (-20.919, 2, 17.851),
    (-38.408, 2, 27.948),
]))
fillet.setExpression("Radius", "Params.fillet_radius")

doc.recompute()
